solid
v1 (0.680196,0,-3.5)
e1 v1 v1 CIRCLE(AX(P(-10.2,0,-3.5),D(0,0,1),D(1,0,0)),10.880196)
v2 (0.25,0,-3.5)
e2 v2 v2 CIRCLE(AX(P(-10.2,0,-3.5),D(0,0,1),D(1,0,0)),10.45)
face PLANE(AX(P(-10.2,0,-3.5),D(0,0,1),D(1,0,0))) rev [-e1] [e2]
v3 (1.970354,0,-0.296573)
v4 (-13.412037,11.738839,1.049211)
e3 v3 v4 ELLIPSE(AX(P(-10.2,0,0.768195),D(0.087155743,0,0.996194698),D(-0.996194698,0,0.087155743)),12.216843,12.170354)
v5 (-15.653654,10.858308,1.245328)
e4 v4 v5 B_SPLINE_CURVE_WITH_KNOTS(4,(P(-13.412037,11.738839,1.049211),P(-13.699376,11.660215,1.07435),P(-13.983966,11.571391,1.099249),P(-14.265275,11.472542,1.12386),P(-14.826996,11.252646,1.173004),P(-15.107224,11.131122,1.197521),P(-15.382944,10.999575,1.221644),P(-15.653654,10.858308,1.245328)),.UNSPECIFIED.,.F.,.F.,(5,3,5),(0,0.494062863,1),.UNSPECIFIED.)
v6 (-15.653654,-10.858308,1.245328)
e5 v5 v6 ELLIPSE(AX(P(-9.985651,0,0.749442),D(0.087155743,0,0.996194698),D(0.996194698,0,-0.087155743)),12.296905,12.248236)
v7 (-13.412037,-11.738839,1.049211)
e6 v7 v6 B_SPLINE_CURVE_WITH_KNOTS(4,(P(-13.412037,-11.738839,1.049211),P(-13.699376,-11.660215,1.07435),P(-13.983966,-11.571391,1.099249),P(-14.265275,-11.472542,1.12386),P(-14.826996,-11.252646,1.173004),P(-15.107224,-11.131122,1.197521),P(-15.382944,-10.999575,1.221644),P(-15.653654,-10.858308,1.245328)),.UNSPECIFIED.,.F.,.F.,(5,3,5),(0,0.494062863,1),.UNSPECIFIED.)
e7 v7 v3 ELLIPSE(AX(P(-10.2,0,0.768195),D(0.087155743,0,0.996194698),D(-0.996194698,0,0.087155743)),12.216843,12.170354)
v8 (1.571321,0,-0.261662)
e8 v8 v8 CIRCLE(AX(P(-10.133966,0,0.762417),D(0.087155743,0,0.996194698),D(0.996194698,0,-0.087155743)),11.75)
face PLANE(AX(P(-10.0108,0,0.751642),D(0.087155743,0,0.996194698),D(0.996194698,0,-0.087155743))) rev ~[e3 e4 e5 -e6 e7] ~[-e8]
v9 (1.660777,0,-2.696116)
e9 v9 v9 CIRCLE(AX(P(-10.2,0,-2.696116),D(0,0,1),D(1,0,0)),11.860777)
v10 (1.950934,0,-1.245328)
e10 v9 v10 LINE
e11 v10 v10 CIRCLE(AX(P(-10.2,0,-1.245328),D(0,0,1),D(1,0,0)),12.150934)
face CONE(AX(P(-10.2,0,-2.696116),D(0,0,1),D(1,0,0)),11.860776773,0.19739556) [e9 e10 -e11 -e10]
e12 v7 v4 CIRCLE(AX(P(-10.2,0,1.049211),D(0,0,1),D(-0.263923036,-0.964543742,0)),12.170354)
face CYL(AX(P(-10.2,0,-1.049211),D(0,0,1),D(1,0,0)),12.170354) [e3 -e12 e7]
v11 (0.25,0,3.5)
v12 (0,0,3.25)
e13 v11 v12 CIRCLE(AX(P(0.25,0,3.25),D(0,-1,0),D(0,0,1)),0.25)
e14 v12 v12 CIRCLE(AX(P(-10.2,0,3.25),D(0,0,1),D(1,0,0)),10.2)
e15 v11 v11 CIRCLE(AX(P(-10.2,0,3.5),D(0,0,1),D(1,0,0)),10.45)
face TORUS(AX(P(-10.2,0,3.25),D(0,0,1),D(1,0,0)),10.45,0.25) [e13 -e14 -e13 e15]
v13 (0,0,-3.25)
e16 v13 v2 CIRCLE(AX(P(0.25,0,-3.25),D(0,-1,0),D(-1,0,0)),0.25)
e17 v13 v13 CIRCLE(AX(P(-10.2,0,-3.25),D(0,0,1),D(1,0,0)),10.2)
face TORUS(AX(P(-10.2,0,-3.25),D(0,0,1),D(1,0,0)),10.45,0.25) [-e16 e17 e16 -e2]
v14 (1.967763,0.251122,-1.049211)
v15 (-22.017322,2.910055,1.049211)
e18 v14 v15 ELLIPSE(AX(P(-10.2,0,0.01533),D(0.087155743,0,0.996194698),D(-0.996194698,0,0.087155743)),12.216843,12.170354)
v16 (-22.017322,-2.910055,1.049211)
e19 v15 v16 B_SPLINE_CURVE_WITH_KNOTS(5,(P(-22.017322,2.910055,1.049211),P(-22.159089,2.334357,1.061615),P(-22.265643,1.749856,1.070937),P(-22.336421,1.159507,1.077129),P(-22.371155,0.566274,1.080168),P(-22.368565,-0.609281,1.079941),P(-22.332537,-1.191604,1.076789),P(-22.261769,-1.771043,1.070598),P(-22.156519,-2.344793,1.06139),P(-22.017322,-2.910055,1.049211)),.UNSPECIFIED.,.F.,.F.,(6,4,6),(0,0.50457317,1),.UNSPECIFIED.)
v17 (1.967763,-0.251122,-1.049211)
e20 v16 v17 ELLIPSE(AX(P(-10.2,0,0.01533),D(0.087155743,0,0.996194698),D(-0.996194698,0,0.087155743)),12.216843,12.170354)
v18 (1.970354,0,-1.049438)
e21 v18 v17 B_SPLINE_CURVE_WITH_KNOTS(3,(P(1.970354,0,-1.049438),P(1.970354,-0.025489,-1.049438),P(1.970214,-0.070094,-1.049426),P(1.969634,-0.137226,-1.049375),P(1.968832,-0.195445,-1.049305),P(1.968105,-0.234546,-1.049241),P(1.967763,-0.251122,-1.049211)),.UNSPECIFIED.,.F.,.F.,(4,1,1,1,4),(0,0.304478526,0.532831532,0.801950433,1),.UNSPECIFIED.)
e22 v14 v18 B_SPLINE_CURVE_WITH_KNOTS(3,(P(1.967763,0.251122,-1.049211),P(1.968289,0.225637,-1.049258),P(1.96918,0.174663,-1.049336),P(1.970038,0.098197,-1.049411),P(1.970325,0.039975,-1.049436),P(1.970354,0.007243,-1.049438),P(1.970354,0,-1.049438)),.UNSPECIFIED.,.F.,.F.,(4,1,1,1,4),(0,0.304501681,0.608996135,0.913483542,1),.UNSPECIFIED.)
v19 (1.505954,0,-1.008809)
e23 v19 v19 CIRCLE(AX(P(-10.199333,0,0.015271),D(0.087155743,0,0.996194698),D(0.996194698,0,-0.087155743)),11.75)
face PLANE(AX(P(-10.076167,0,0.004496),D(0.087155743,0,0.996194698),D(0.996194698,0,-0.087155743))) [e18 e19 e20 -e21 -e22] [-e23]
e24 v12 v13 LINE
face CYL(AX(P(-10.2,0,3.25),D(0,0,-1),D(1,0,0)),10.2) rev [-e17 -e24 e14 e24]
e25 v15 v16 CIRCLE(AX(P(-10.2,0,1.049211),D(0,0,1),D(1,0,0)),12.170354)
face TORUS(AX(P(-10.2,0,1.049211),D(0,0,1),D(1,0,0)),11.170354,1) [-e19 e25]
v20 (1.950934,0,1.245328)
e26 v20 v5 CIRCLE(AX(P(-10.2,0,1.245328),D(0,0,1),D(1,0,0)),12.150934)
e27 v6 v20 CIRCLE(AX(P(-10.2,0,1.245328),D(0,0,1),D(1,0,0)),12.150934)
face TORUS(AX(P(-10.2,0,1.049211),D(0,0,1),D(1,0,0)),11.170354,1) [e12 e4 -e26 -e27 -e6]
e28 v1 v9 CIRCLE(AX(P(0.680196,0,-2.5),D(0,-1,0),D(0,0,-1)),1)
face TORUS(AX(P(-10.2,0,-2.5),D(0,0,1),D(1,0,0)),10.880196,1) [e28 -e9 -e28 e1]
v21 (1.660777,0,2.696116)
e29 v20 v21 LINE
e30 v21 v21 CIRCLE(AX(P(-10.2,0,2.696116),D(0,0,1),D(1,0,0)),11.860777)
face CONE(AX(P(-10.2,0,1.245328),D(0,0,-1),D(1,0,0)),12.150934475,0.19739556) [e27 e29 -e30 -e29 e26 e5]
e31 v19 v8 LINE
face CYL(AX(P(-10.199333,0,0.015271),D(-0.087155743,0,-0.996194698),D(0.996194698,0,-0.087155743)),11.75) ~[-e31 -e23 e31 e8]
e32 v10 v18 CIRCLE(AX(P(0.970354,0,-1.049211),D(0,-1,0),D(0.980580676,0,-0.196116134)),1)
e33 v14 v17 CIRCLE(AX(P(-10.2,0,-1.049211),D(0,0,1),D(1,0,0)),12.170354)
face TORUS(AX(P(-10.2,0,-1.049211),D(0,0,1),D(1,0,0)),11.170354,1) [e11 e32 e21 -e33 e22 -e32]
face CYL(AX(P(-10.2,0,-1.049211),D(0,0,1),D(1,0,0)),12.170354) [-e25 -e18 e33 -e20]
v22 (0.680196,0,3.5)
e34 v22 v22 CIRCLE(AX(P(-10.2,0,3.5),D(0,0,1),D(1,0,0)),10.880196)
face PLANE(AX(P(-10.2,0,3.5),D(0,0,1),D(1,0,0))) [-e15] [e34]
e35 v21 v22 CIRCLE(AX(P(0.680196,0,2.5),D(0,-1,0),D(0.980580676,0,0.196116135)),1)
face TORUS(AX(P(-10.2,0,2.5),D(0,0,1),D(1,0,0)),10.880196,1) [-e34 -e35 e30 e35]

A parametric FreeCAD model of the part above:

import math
import FreeCAD as App
import Part
import Sketcher
from FreeCAD import Vector
Q = App.Units.Quantity

doc = App.newDocument("Part")
body = doc.addObject("PartDesign::Body", "Body")

# Sketch on XZ plane
sketch1 = body.newObject("Sketcher::SketchObject", "Sketch")
sketch1.AttachmentSupport = (doc.getObject("XZ_Plane"), [""])
sketch1.MapMode = "FlatFace"
sketch1.addGeometry([
    Part.LineSegment(Vector(0, 3.25, 0), Vector(0, -3.25, 0)),  # 0
    Part.ArcOfCircle(Part.Circle(Vector(0.25, -3.25, 0), Vector(0, 0, 1), 0.25), math.radians(180), math.radians(270)),  # 1
    Part.LineSegment(Vector(0.25, -3.5, 0), Vector(0.680196, -3.5, 0)),  # 2
    Part.ArcOfCircle(Part.Circle(Vector(0.680196, -2.5, 0), Vector(0, 0, 1), 1), math.radians(-90), math.radians(-11.309932)),  # 3
    Part.LineSegment(Vector(1.660777, -2.696116, 0), Vector(1.950934, -1.245328, 0)),  # 4
    Part.ArcOfCircle(Part.Circle(Vector(0.970354, -1.049211, 0), Vector(0, 0, 1), 1), math.radians(-11.309932), math.radians(0)),  # 5
    Part.LineSegment(Vector(1.970354, -1.049211, 0), Vector(1.970354, 1.049211, 0)),  # 6
    Part.ArcOfCircle(Part.Circle(Vector(0.970354, 1.049211, 0), Vector(0, 0, 1), 1), math.radians(0), math.radians(11.309932)),  # 7
    Part.LineSegment(Vector(1.950934, 1.245328, 0), Vector(1.660777, 2.696116, 0)),  # 8
    Part.ArcOfCircle(Part.Circle(Vector(0.680196, 2.5, 0), Vector(0, 0, 1), 1), math.radians(11.309932), math.radians(90)),  # 9
    Part.LineSegment(Vector(0.680196, 3.5, 0), Vector(0.25, 3.5, 0)),  # 10
    Part.ArcOfCircle(Part.Circle(Vector(0.25, 3.25, 0), Vector(0, 0, 1), 0.25), math.radians(90), math.radians(180)),  # 11
], False)
sketch1.addGeometry(Part.LineSegment(Vector(-10.2, -3.5, 0), Vector(-10.2, 3.5, 0)), True)  # axis
sketch1.addConstraint([
    Sketcher.Constraint("Tangent", 0, 2, 1, 1),
    Sketcher.Constraint("Tangent", 1, 2, 2, 1),
    Sketcher.Constraint("Tangent", 2, 2, 3, 1),
    Sketcher.Constraint("Tangent", 3, 2, 4, 1),
    Sketcher.Constraint("Tangent", 4, 2, 5, 1),
    Sketcher.Constraint("Tangent", 5, 2, 6, 1),
    Sketcher.Constraint("Tangent", 6, 2, 7, 1),
    Sketcher.Constraint("Tangent", 7, 2, 8, 1),
    Sketcher.Constraint("Tangent", 8, 2, 9, 1),
    Sketcher.Constraint("Tangent", 9, 2, 10, 1),
    Sketcher.Constraint("Tangent", 10, 2, 11, 1),
    Sketcher.Constraint("Tangent", 11, 2, 0, 1),
    Sketcher.Constraint("Vertical", 0),
    Sketcher.Constraint("Horizontal", 2),
    Sketcher.Constraint("Vertical", 6),
    Sketcher.Constraint("Horizontal", 10),
    Sketcher.Constraint("Vertical", 12),
    Sketcher.Constraint("Equal", 3, 5),
    Sketcher.Constraint("Equal", 5, 7),
    Sketcher.Constraint("Equal", 7, 9),
    Sketcher.Constraint("Equal", 1, 11),
    Sketcher.Constraint("Symmetric", 0, 2, 11, 2, -1, 1),
    Sketcher.Constraint("Symmetric", 4, 2, 7, 2, -1),
    Sketcher.Constraint("Horizontal", 2, 2, 12, 1),
    Sketcher.Constraint("Horizontal", 10, 2, 12, 2),
    Sketcher.Constraint("Radius", 3, Q("1 mm")),
    Sketcher.Constraint("DistanceY", 12, 1, 12, 2, Q("7 mm")),
    Sketcher.Constraint("Radius", 1, Q("0.25 mm")),
    Sketcher.Constraint("DistanceX", 12, 1, -1, 1, Q("10.2 mm")),
    Sketcher.Constraint("Distance", 4, Q("1.47952 mm")),
    Sketcher.Constraint("DistanceX", 2, 1, 2, 2, Q("0.430196 mm")),
    Sketcher.Constraint("DistanceY", 6, 1, 6, 2, Q("2.098423 mm")),
])
revolution = body.newObject("PartDesign::Revolution", "Revolution")
revolution.Profile = sketch1
revolution.ReferenceAxis = (sketch1, ["Axis0"])
revolution.Angle = 360
body2 = doc.addObject("PartDesign::Body", "Body001")

# Sketch on XY plane
sketch2 = body2.newObject("Sketcher::SketchObject", "Sketch001")
sketch2.AttachmentSupport = (doc.getObject("XY_Plane001"), [""])
sketch2.MapMode = "FlatFace"
sketch2.addGeometry(Part.Circle(Vector(-10.2, 0, 0), Vector(0, 0, 1), 11.75), False)
sketch2.addConstraint([
    Sketcher.Constraint("PointOnObject", 0, 3, -1),
    Sketcher.Constraint("Diameter", 0, Q("23.5 mm")),
    Sketcher.Constraint("DistanceX", 0, 3, -1, 1, Q("10.2 mm")),
])
pad1 = body2.newObject("PartDesign::Pad", "Pad")
pad1.Profile = sketch2
pad1.Length = 0.75
body3 = doc.addObject("PartDesign::Body", "Body002")

# Sketch on XY plane
sketch3 = body3.newObject("Sketcher::SketchObject", "Sketch002")
sketch3.AttachmentSupport = (doc.getObject("XY_Plane002"), [""])
sketch3.MapMode = "FlatFace"
sketch3.addGeometry(Part.Circle(Vector(-10.076364, 0, 0), Vector(0, 0, 1), 18.14705), False)
sketch3.addConstraint([
    Sketcher.Constraint("PointOnObject", 0, 3, -1),
    Sketcher.Constraint("Diameter", 0, Q("36.2941 mm")),
    Sketcher.Constraint("DistanceX", 0, 3, -1, 1, Q("10.076364 mm")),
])
pad2 = body3.newObject("PartDesign::Pad", "Pad001")
pad2.Profile = sketch3
pad2.Length = 0.75
doc.recompute()

boolean = body3.newObject("PartDesign::Boolean", "Boolean")
boolean.Type = "Cut"
boolean.addObjects([body2])
body4 = doc.addObject("PartDesign::Body", "Body003")
doc.recompute()

body3.Placement = App.Placement(Vector(-0.038147, 0, -0.873717), App.Rotation(Vector(0, 1, 0), 5))
boolean2 = body4.newObject("PartDesign::Boolean", "Boolean001")
boolean2.Type = "Fuse"
boolean2.addObjects([body3])
doc.recompute()

boolean3 = body.newObject("PartDesign::Boolean", "Boolean002")
boolean3.Type = "Cut"
boolean3.addObjects([body4])

doc.recompute()
